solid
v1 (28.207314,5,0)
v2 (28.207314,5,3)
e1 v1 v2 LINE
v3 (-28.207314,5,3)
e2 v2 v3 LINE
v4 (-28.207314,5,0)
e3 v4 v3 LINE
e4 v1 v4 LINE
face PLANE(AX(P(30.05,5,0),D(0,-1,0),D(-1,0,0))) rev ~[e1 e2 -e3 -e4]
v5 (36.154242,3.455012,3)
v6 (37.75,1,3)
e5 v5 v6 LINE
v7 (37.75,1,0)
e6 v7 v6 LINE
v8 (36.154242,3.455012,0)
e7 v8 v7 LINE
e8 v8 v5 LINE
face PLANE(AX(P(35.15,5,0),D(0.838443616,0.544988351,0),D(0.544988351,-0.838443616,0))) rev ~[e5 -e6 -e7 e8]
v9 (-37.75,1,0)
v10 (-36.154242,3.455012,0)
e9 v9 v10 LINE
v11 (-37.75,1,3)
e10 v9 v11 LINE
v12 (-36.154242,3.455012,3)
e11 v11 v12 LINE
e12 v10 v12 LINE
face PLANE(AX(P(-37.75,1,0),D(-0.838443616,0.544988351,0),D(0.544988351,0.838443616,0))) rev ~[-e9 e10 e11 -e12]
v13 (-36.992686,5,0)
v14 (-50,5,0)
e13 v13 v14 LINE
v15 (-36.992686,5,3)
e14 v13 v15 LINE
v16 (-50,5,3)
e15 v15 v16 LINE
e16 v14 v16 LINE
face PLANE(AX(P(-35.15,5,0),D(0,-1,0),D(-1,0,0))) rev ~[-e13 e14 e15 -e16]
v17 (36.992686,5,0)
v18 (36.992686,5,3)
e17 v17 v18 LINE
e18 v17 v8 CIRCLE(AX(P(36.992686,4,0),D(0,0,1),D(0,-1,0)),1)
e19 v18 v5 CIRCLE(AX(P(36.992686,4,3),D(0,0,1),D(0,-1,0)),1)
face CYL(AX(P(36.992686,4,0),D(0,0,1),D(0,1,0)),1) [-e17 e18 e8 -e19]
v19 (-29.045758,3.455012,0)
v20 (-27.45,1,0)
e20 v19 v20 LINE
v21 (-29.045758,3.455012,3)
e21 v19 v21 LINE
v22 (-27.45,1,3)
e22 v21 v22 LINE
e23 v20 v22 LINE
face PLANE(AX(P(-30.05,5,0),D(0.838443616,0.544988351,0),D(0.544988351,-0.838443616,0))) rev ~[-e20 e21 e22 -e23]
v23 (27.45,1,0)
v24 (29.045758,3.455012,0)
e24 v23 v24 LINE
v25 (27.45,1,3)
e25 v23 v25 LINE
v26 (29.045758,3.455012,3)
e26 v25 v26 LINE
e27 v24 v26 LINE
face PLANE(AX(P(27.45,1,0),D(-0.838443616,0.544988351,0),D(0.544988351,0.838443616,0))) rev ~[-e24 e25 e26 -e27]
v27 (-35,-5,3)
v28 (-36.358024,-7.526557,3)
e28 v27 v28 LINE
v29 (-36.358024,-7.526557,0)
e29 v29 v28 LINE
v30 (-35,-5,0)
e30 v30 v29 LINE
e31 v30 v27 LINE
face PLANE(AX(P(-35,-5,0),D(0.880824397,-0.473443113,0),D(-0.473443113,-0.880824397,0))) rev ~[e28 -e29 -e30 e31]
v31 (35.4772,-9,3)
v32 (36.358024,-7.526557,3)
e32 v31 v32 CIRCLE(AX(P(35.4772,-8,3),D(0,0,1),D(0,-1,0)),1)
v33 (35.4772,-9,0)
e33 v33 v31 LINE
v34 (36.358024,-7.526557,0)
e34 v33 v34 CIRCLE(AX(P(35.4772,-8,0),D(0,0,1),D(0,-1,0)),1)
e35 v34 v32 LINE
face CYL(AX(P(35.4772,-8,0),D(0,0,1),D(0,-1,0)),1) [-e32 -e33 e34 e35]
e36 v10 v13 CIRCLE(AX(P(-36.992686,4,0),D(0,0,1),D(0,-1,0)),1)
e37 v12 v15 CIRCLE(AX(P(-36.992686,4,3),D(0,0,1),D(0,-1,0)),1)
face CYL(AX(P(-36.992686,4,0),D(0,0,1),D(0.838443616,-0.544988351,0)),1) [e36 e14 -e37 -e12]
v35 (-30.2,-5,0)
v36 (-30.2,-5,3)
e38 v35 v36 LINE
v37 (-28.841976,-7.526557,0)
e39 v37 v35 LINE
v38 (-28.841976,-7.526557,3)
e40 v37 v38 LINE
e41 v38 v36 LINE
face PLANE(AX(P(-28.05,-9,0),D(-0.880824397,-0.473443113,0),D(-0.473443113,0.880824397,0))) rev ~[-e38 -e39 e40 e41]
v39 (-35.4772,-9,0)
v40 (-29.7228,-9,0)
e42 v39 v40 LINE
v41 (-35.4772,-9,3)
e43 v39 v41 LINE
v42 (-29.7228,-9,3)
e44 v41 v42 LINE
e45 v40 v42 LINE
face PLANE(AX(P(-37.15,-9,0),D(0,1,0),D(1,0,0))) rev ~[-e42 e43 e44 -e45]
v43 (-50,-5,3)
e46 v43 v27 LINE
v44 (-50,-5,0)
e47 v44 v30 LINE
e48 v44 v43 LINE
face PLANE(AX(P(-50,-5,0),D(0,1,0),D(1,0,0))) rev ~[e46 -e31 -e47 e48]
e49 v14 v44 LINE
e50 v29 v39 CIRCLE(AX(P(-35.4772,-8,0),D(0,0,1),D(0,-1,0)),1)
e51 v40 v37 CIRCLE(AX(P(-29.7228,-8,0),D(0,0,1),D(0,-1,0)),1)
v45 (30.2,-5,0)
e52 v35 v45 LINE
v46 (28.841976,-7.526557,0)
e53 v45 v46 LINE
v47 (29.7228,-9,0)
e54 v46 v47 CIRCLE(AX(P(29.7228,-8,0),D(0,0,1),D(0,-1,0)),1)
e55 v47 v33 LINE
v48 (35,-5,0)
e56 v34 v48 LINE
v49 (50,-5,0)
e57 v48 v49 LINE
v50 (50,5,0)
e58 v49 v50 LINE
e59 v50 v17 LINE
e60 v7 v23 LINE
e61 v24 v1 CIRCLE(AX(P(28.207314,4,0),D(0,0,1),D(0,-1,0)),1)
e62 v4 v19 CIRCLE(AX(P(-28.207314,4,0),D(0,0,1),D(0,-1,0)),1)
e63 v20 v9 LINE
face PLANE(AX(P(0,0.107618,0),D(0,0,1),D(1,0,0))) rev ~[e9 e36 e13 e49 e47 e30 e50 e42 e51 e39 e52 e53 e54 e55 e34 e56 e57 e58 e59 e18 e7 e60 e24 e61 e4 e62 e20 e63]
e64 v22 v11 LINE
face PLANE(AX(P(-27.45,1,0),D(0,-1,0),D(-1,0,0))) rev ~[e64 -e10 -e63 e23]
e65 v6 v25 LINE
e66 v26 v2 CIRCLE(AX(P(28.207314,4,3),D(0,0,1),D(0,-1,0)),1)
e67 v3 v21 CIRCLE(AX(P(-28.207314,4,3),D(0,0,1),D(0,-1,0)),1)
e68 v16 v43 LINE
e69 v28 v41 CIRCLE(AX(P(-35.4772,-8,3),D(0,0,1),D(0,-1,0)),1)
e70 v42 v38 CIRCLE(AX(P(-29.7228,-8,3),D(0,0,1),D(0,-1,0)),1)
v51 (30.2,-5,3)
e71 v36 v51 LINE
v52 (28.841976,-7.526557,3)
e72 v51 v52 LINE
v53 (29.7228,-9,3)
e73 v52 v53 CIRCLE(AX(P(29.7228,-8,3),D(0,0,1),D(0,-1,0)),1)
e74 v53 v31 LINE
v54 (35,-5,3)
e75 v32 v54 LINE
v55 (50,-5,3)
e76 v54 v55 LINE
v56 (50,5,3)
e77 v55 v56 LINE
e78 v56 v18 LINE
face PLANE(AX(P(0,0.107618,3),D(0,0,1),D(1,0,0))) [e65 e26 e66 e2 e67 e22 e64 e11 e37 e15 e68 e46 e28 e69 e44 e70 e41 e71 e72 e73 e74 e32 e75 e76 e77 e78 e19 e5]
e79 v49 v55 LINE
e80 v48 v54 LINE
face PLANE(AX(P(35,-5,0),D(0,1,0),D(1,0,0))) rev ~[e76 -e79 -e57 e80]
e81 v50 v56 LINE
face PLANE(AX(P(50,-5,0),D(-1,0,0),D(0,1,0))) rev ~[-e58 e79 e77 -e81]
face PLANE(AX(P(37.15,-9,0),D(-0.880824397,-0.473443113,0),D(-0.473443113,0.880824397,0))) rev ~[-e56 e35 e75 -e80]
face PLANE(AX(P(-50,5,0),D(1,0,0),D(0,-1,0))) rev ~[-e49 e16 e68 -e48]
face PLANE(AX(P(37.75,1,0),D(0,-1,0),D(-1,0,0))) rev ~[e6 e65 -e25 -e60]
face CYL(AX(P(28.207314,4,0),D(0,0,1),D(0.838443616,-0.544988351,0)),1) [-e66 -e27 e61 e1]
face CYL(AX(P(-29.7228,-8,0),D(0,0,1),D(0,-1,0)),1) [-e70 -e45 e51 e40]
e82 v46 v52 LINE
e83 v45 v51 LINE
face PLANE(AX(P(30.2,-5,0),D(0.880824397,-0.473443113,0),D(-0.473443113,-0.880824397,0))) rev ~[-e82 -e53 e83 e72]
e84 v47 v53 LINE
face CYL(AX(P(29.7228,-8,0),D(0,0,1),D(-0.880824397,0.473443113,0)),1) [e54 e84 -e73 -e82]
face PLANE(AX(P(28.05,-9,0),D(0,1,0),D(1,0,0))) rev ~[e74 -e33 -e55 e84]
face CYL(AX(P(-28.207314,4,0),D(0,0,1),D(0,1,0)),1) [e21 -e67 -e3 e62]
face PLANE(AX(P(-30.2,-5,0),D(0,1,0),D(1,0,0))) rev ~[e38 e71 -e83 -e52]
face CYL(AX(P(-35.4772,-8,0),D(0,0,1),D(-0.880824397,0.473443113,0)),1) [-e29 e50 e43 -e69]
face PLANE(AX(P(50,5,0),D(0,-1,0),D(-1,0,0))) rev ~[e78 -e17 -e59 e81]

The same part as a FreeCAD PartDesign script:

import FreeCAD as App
import Part
import Sketcher
from FreeCAD import Vector


def edges_at(feature, points):
    """Names of the edges that pass closest to the given points."""
    edges = feature.Shape.Edges
    near = lambda p: min(range(len(edges)), key=lambda i: edges[i].distToShape(Part.Vertex(*p))[0])
    return sorted({f"Edge{near(p) + 1}" for p in points})

doc = App.newDocument("Part")
body = doc.addObject("PartDesign::Body", "Body")

sketch1 = body.newObject("Sketcher::SketchObject", "Sketch")
sketch1.AttachmentSupport = (doc.getObject("XY_Plane"), [""])
sketch1.MapMode = "FlatFace"
sketch1.addGeometry([
    Part.LineSegment(Vector(50, -5, 0), Vector(50, 5, 0)),
    Part.LineSegment(Vector(50, 5, 0), Vector(35.1, 5, 0)),
    Part.LineSegment(Vector(35.1, 5, 0), Vector(37.8, 1, 0)),
    Part.LineSegment(Vector(37.8, 1, 0), Vector(27.4, 1, 0)),
    Part.LineSegment(Vector(27.4, 1, 0), Vector(30.1, 5, 0)),
    Part.LineSegment(Vector(30.1, 5, 0), Vector(-30.1, 5, 0)),
    Part.LineSegment(Vector(-30.1, 5, 0), Vector(-27.4, 1, 0)),
    Part.LineSegment(Vector(-27.4, 1, 0), Vector(-37.8, 1, 0)),
    Part.LineSegment(Vector(-37.8, 1, 0), Vector(-35.1, 5, 0)),
    Part.LineSegment(Vector(-35.1, 5, 0), Vector(-50, 5, 0)),
    Part.LineSegment(Vector(-50, 5, 0), Vector(-50, -5, 0)),
    Part.LineSegment(Vector(-50, -5, 0), Vector(-35, -5, 0)),
    Part.LineSegment(Vector(-35, -5, 0), Vector(-37.1, -9, 0)),
    Part.LineSegment(Vector(-37.1, -9, 0), Vector(-28.1, -9, 0)),
    Part.LineSegment(Vector(-28.1, -9, 0), Vector(-30.2, -5, 0)),
    Part.LineSegment(Vector(-30.2, -5, 0), Vector(30.2, -5, 0)),
    Part.LineSegment(Vector(30.2, -5, 0), Vector(28.1, -9, 0)),
    Part.LineSegment(Vector(28.1, -9, 0), Vector(37.1, -9, 0)),
    Part.LineSegment(Vector(37.1, -9, 0), Vector(35, -5, 0)),
    Part.LineSegment(Vector(35, -5, 0), Vector(50, -5, 0)),
], False)
sketch1.addConstraint([
    Sketcher.Constraint("Coincident", 0, 2, 1, 1),
    Sketcher.Constraint("Coincident", 1, 2, 2, 1),
    Sketcher.Constraint("Coincident", 2, 2, 3, 1),
    Sketcher.Constraint("Coincident", 3, 2, 4, 1),
    Sketcher.Constraint("Coincident", 4, 2, 5, 1),
    Sketcher.Constraint("Coincident", 5, 2, 6, 1),
    Sketcher.Constraint("Coincident", 6, 2, 7, 1),
    Sketcher.Constraint("Coincident", 7, 2, 8, 1),
    Sketcher.Constraint("Coincident", 8, 2, 9, 1),
    Sketcher.Constraint("Coincident", 9, 2, 10, 1),
    Sketcher.Constraint("Coincident", 10, 2, 11, 1),
    Sketcher.Constraint("Coincident", 11, 2, 12, 1),
    Sketcher.Constraint("Coincident", 12, 2, 13, 1),
    Sketcher.Constraint("Coincident", 13, 2, 14, 1),
    Sketcher.Constraint("Coincident", 14, 2, 15, 1),
    Sketcher.Constraint("Coincident", 15, 2, 16, 1),
    Sketcher.Constraint("Coincident", 16, 2, 17, 1),
    Sketcher.Constraint("Coincident", 17, 2, 18, 1),
    Sketcher.Constraint("Coincident", 18, 2, 19, 1),
    Sketcher.Constraint("Coincident", 19, 2, 0, 1),
    Sketcher.Constraint("Vertical", 0),
    Sketcher.Constraint("Horizontal", 1),
    Sketcher.Constraint("Horizontal", 3),
    Sketcher.Constraint("Horizontal", 5),
    Sketcher.Constraint("Horizontal", 7),
    Sketcher.Constraint("Horizontal", 9),
    Sketcher.Constraint("Vertical", 10),
    Sketcher.Constraint("Horizontal", 11),
    Sketcher.Constraint("Horizontal", 13),
    Sketcher.Constraint("Horizontal", 15),
    Sketcher.Constraint("Horizontal", 17),
    Sketcher.Constraint("Horizontal", 19),
    Sketcher.Constraint("Symmetric", 0, 2, 10, 2, -1, 1),
    Sketcher.Constraint("Symmetric", 3, 2, 6, 2, -2),
    Sketcher.Constraint("Symmetric", 1, 2, 8, 2, -2),
    Sketcher.Constraint("Symmetric", 13, 2, 16, 2, -2),
    Sketcher.Constraint("Symmetric", 11, 2, 18, 2, -2),
    Sketcher.Constraint("Parallel", 2, 6),
    Sketcher.Constraint("Parallel", 4, 8),
    Sketcher.Constraint("Parallel", 12, 16),
    Sketcher.Constraint("Parallel", 14, 18),
    Sketcher.Constraint("Horizontal", 1, 2, 4, 2),
    Sketcher.Constraint("Horizontal", 11, 2, 14, 2),
    Sketcher.Constraint("Equal", 3, 7),
    Sketcher.Constraint("Equal", 13, 17),
    Sketcher.Constraint("DistanceX", 11, 1, 11, 2, 15.0),
    Sketcher.Constraint("DistanceY", 0, 1, 0, 2, 10.0),
    Sketcher.Constraint("DistanceX", 3, 2, 3, 1, 10.3),
    Sketcher.Constraint("DistanceX", 5, 2, 5, 1, 60.1),
    Sketcher.Constraint("DistanceX", 13, 1, 13, 2, 9.1),
    Sketcher.Constraint("DistanceX", 15, 1, 15, 2, 60.4),
    Sketcher.Constraint("DistanceX", -1, 1, 0, 2, 50.0),
    Sketcher.Constraint("DistanceY", -1, 1, 2, 2, 1.0),
    Sketcher.Constraint("DistanceY", 12, 2, -1, 1, 9.0),
    Sketcher.Constraint("DistanceX", 12, 2, 8, 2, 2.0),
])
pad1 = body.newObject("PartDesign::Pad", "Pad")
pad1.Profile = sketch1
pad1.Length = 3
doc.recompute()

fillet = body.newObject("PartDesign::Fillet", "Fillet")
fillet.Base = (pad1, edges_at(pad1, [
    (-28.05, -9, 1.5),
    (-37.15, -9, 1.5),
    (37.15, -9, 1.5),
    (28.05, -9, 1.5),
    (30.05, 5, 1.5),
    (-35.15, 5, 1.5),
    (-30.05, 5, 1.5),
    (35.15, 5, 1.5),
]))
fillet.Radius = 1

doc.recompute()
